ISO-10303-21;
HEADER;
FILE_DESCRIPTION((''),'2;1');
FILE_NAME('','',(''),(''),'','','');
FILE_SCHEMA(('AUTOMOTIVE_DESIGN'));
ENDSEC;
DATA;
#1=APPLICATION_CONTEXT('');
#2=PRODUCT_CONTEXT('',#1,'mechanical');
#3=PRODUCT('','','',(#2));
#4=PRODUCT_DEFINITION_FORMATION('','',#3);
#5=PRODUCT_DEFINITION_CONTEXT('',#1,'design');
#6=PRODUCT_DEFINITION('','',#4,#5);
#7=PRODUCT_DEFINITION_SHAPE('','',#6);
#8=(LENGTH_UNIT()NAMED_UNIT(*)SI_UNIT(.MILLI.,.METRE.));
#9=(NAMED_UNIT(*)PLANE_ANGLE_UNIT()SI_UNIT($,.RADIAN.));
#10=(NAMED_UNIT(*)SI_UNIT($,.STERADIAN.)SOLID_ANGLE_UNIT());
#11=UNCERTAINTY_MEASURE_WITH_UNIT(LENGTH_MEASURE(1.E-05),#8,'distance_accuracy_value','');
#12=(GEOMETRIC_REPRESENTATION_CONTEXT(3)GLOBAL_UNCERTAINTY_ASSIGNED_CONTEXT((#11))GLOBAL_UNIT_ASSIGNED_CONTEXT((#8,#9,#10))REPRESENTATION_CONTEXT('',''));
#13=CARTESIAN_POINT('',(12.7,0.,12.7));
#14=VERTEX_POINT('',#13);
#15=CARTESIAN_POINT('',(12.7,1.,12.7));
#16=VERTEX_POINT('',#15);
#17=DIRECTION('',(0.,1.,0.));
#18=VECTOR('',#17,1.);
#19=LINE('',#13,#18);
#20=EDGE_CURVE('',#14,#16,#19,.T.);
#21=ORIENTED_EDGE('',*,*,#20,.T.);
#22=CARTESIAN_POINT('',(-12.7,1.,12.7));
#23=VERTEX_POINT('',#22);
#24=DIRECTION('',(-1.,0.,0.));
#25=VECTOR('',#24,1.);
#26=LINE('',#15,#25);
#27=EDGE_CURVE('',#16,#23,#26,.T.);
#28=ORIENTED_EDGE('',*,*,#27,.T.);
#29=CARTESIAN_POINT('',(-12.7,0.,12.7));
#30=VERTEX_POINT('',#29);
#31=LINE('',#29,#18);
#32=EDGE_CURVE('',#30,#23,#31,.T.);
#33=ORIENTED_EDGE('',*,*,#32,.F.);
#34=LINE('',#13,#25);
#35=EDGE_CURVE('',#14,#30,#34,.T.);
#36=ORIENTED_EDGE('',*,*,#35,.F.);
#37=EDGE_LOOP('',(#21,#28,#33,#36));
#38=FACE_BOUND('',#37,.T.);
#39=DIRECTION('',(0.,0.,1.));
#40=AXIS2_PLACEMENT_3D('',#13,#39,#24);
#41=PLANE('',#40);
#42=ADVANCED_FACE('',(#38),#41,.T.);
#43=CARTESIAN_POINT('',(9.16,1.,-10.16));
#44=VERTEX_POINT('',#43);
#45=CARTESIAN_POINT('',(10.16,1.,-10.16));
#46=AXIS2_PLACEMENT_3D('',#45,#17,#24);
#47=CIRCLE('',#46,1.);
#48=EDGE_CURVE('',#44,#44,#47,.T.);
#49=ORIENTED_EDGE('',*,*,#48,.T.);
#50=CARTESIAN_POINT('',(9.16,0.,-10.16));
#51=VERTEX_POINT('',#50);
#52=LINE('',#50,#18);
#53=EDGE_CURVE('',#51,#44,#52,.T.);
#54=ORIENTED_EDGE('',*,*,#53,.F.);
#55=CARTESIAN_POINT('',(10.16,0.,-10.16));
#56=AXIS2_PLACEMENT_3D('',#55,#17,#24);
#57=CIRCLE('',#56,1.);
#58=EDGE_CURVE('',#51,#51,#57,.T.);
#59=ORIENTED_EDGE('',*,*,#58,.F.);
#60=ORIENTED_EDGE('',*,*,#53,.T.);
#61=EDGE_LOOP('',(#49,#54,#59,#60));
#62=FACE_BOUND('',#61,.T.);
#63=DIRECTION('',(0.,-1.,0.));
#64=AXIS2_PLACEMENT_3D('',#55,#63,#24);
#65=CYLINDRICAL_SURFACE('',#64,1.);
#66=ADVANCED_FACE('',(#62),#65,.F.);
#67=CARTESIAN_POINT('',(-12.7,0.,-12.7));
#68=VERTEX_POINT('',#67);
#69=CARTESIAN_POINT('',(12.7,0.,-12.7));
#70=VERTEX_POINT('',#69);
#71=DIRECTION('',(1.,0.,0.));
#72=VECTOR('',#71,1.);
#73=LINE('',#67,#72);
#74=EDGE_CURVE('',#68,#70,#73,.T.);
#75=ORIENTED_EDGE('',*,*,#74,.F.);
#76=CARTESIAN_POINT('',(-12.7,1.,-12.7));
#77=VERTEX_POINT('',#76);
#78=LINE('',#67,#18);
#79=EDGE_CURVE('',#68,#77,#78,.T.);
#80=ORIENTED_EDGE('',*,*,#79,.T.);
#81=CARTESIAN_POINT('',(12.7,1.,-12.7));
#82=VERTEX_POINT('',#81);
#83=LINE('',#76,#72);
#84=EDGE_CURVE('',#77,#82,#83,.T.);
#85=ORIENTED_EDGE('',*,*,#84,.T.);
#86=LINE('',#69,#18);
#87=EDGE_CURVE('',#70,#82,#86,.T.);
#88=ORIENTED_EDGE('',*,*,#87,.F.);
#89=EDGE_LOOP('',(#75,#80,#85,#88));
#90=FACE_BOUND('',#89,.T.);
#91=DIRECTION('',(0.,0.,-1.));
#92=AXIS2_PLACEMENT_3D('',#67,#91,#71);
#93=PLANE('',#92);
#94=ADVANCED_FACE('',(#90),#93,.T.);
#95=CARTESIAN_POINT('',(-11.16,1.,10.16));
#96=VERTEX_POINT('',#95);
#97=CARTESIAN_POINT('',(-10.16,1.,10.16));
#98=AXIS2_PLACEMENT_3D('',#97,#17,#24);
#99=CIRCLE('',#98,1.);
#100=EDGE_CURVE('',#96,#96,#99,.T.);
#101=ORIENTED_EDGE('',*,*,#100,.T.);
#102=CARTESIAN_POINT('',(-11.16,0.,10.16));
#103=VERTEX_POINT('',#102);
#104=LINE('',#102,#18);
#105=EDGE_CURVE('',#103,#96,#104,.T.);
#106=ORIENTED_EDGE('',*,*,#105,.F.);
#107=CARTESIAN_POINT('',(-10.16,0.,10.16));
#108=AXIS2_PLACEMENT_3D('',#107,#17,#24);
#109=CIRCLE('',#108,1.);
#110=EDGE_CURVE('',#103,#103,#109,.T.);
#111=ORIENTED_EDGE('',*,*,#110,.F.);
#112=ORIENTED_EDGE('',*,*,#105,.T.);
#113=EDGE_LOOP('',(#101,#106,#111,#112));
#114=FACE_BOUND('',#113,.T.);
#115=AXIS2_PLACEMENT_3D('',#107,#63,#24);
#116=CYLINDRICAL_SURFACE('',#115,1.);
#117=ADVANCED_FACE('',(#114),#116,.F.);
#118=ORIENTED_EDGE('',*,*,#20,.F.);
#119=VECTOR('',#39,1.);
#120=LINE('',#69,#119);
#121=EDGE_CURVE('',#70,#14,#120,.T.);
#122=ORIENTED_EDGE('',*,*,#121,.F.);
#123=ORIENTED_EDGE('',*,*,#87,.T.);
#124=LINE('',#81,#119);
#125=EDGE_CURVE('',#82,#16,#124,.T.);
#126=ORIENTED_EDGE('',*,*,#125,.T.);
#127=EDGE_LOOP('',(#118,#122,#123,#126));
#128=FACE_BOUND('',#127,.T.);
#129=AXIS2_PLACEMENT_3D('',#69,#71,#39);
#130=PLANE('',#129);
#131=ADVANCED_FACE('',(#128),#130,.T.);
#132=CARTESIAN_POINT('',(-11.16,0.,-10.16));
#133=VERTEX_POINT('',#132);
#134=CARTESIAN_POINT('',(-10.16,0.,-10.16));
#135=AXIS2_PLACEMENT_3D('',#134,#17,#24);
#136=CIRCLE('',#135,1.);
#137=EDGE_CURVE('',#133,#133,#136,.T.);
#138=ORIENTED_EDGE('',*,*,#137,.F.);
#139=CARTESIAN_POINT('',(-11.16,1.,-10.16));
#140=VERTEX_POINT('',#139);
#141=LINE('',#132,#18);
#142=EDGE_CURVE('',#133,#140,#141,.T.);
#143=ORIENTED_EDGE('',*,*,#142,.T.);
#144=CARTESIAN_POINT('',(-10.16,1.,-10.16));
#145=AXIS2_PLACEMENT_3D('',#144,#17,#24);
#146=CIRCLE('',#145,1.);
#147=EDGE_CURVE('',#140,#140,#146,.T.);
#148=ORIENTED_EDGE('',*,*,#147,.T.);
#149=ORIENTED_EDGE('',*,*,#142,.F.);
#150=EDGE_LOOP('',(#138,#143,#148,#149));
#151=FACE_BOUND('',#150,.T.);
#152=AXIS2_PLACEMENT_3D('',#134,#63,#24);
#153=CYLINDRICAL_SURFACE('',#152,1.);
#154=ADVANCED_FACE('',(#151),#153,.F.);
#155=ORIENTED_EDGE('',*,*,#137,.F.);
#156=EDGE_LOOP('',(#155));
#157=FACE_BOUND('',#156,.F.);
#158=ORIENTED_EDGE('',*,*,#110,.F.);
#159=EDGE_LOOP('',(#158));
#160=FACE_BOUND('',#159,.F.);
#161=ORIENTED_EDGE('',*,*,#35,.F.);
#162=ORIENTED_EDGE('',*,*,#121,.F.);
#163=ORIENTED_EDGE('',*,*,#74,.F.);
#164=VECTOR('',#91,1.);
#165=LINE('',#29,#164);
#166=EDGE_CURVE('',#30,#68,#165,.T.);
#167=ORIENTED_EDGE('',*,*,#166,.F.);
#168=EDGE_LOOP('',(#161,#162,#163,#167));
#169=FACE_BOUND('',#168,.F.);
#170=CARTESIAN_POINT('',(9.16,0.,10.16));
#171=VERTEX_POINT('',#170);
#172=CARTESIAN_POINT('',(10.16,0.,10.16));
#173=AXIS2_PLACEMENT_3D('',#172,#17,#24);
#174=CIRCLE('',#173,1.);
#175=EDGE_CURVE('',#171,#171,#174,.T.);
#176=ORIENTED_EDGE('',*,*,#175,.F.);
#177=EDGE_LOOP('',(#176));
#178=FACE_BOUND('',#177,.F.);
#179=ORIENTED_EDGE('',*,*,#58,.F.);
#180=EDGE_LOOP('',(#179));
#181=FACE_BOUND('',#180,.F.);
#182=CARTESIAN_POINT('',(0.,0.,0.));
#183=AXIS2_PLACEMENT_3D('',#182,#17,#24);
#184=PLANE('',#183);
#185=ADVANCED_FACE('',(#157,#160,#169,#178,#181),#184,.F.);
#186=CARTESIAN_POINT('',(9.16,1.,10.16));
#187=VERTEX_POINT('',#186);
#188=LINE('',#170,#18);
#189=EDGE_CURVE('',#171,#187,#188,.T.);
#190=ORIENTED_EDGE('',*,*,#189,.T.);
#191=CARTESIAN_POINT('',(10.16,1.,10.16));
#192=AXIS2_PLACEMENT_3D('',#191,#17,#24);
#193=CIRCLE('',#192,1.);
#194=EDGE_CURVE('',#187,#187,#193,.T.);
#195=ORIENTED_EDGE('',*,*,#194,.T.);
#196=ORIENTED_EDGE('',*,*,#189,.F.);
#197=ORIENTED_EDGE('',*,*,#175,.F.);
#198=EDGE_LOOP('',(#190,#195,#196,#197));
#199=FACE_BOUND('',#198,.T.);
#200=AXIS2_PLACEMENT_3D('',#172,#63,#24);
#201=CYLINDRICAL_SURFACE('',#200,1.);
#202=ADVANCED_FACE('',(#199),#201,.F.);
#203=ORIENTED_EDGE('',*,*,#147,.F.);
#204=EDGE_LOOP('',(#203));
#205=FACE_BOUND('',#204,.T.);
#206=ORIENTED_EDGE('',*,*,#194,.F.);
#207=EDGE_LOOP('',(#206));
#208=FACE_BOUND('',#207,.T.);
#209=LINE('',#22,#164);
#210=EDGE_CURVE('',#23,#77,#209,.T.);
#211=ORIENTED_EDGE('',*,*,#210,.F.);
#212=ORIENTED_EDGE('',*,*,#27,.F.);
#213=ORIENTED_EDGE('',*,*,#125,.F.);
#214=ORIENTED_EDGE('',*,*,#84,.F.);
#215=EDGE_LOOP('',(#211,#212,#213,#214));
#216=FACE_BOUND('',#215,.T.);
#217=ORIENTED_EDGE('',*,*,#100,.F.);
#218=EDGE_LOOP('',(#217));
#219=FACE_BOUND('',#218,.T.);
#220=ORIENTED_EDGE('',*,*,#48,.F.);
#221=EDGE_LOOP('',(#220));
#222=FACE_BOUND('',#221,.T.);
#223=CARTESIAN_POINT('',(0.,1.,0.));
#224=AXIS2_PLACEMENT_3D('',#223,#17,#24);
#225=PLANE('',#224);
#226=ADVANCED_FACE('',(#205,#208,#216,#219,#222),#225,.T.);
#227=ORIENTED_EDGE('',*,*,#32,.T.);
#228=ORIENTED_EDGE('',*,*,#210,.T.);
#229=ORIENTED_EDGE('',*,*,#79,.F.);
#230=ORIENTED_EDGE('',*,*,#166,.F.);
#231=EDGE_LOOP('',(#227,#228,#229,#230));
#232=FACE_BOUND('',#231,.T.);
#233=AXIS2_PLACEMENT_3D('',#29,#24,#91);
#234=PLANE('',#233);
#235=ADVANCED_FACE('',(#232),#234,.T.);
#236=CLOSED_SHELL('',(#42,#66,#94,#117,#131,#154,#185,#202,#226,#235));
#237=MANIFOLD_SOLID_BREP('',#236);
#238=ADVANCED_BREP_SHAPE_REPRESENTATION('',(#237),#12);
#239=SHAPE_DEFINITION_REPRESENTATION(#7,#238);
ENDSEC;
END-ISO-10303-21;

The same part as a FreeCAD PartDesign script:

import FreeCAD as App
import Part
import Sketcher
from FreeCAD import Vector
Q = App.Units.Quantity

doc = App.newDocument("Part")
body = doc.addObject("PartDesign::Body", "Body")

# Sketch on XZ plane
sketch1 = body.newObject("Sketcher::SketchObject", "Sketch")
sketch1.AttachmentSupport = (doc.getObject("XZ_Plane"), [""])
sketch1.MapMode = "FlatFace"
sketch1.addGeometry(Part.LineSegment(Vector(-12.7, 12.7, 0), Vector(12.7, 12.7, 0)), False)
sketch1.addGeometry(Part.LineSegment(Vector(12.7, 12.7, 0), Vector(12.7, -12.7, 0)), False)
sketch1.addGeometry(Part.LineSegment(Vector(12.7, -12.7, 0), Vector(-12.7, -12.7, 0)), False)
sketch1.addGeometry(Part.LineSegment(Vector(-12.7, -12.7, 0), Vector(-12.7, 12.7, 0)), False)
sketch1.addGeometry(Part.Circle(Vector(10.2, -10.2, 0), Vector(0, 0, 1), 1), False)
sketch1.addGeometry(Part.Circle(Vector(-10.2, -10.2, 0), Vector(0, 0, 1), 1), False)
sketch1.addGeometry(Part.Circle(Vector(10.2, 10.2, 0), Vector(0, 0, 1), 1), False)
sketch1.addGeometry(Part.Circle(Vector(-10.2, 10.2, 0), Vector(0, 0, 1), 1), False)
sketch1.addConstraint(Sketcher.Constraint("Coincident", 0, 2, 1, 1))
sketch1.addConstraint(Sketcher.Constraint("Coincident", 1, 2, 2, 1))
sketch1.addConstraint(Sketcher.Constraint("Coincident", 2, 2, 3, 1))
sketch1.addConstraint(Sketcher.Constraint("Coincident", 3, 2, 0, 1))
sketch1.addConstraint(Sketcher.Constraint("Horizontal", 0))
sketch1.addConstraint(Sketcher.Constraint("Vertical", 1))
sketch1.addConstraint(Sketcher.Constraint("Horizontal", 2))
sketch1.addConstraint(Sketcher.Constraint("Vertical", 3))
sketch1.addConstraint(Sketcher.Constraint("Equal", 4, 5))
sketch1.addConstraint(Sketcher.Constraint("Equal", 5, 6))
sketch1.addConstraint(Sketcher.Constraint("Equal", 6, 7))
sketch1.addConstraint(Sketcher.Constraint("Symmetric", 5, 3, 6, 3, -1, 1))
sketch1.addConstraint(Sketcher.Constraint("Symmetric", 4, 3, 7, 3, -1, 1))
sketch1.addConstraint(Sketcher.Constraint("Symmetric", 0, 2, 2, 2, -1, 1))
sketch1.addConstraint(Sketcher.Constraint("Symmetric", 4, 3, 5, 3, -2))
sketch1.addConstraint(Sketcher.Constraint("Equal", 2, 1))
sketch1.addConstraint(Sketcher.Constraint("Diameter", 4, Q("2 mm")))
sketch1.addConstraint(Sketcher.Constraint("DistanceX", 0, 1, 0, 2, Q("25.4 mm")))
sketch1.addConstraint(Sketcher.Constraint("DistanceX", 6, 3, 0, 2, Q("2.54 mm")))
sketch1.addConstraint(Sketcher.Constraint("DistanceY", 6, 3, 0, 2, Q("2.54 mm")))
pad1 = body.newObject("PartDesign::Pad", "Pad")
pad1.Profile = sketch1
pad1.Length = 1
pad1.Reversed = True

doc.recompute()
